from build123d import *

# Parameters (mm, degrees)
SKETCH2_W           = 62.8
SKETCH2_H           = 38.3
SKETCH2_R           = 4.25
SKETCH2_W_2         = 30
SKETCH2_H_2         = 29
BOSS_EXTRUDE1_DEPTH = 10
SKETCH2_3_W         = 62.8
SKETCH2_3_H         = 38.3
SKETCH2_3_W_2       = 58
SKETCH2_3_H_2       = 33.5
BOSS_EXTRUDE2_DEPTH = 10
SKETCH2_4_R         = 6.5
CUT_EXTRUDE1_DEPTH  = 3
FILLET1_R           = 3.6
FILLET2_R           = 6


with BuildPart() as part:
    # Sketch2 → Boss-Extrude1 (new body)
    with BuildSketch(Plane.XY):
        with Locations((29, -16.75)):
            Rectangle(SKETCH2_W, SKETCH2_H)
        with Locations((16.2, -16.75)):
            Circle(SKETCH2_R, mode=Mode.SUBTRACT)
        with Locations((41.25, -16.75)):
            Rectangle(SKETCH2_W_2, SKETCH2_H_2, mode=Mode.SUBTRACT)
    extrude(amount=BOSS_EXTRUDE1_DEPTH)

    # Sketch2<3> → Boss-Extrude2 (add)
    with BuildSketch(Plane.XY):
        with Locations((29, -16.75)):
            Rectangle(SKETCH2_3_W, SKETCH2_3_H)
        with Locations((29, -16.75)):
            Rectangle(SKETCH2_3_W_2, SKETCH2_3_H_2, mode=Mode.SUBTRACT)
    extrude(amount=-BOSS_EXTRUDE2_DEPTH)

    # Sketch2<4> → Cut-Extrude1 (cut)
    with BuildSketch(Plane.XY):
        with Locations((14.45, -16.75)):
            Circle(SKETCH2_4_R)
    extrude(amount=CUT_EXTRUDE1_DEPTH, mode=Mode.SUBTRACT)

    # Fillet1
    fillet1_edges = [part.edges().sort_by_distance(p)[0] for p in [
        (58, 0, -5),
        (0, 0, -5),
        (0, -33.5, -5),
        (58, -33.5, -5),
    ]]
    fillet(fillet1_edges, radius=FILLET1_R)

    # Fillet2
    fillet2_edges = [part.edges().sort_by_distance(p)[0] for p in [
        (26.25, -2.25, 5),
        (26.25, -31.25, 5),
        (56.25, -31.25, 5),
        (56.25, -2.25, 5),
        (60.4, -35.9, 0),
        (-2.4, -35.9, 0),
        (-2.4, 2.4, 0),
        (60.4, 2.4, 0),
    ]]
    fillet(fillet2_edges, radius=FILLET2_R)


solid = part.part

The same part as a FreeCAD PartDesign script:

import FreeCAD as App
import Part
import Sketcher
from FreeCAD import Vector
Q = App.Units.Quantity


def edges_at(feature, points):
    """Names of the edges that pass closest to the given points."""
    edges = feature.Shape.Edges
    near = lambda p: min(range(len(edges)), key=lambda i: edges[i].distToShape(Part.Vertex(*p))[0])
    return sorted({f"Edge{near(p) + 1}" for p in points})


def add_polygon(sketch, points):
    """Adds a closed chain of lines whose ends are joined by coincident constraints."""
    first, n = sketch.GeometryCount, len(points)
    for a, b in zip(points, points[1:] + points[:1]):
        sketch.addGeometry(Part.LineSegment(App.Vector(*a, 0), App.Vector(*b, 0)), False)
    for i in range(n):
        sketch.addConstraint(Sketcher.Constraint("Coincident", first + i, 2, first + (i + 1) % n, 1))

doc = App.newDocument("Part")
params = doc.addObject("Spreadsheet::Sheet", "Params")
for row, (alias, value) in enumerate([
    ("sketch1_diameter", "8.5 mm"),
    ("sketch1_width", "30 mm"),
    ("sketch1_height", "29 mm"),
    ("sketch1_width2", "62.8 mm"),
    ("sketch1_height2", "38.3 mm"),
    ("pad1_length", "10 mm"),
    ("sketch2_width", "58 mm"),
    ("sketch2_width2", "62.8 mm"),
    ("sketch2_height", "38.3 mm"),
    ("sketch2_height2", "33.5 mm"),
    ("pad2_length", "10 mm"),
    ("sketch3_diameter", "13 mm"),
    ("pocket1_length", "3 mm"),
    ("fillet_radius", "3.6 mm"),
    ("fillet2_radius", "6 mm"),
], start=1):
    params.set(f"A{row}", alias)
    params.set(f"B{row}", "=" + value)
    params.setAlias(f"B{row}", alias)

body = doc.addObject("PartDesign::Body", "Body")

# Sketch on XY plane
sketch1 = body.newObject("Sketcher::SketchObject", "Sketch")
sketch1.AttachmentSupport = (doc.getObject("XY_Plane"), [""])
sketch1.MapMode = "FlatFace"
add_polygon(sketch1, [(-2.4, 2.4), (-2.4, -35.9), (60.4, -35.9), (60.4, 2.4)])  # lines 0-3
sketch1.addGeometry(Part.Circle(Vector(16.2, -16.8, 0), Vector(0, 0, 1), 4.2), False)  # 4
add_polygon(sketch1, [(56.2, -31.2), (26.2, -31.2), (26.2, -2.2), (56.2, -2.2)])  # lines 5-8
sketch1.addConstraint([
    Sketcher.Constraint("Vertical", 0),
    Sketcher.Constraint("Horizontal", 1),
    Sketcher.Constraint("Vertical", 2),
    Sketcher.Constraint("Horizontal", 3),
    Sketcher.Constraint("Horizontal", 5),
    Sketcher.Constraint("Vertical", 6),
    Sketcher.Constraint("Horizontal", 7),
    Sketcher.Constraint("Vertical", 8),
    Sketcher.Constraint("Diameter", 4, Q("8.5 mm")),
    Sketcher.Constraint("DistanceX", 5, 2, 5, 1, Q("30 mm")),
    Sketcher.Constraint("DistanceY", 6, 1, 6, 2, Q("29 mm")),
    Sketcher.Constraint("DistanceX", 1, 1, 1, 2, Q("62.8 mm")),
    Sketcher.Constraint("DistanceY", 0, 2, 0, 1, Q("38.3 mm")),
    Sketcher.Constraint("DistanceX", -1, 1, 4, 3, Q("16.2 mm")),
    Sketcher.Constraint("DistanceX", 0, 2, -1, 1, Q("2.4 mm")),
    Sketcher.Constraint("DistanceY", 0, 2, -1, 1, Q("35.9 mm")),
    Sketcher.Constraint("DistanceY", 5, 2, 4, 3, Q("14.5 mm")),
    Sketcher.Constraint("DistanceY", 4, 3, -1, 1, Q("16.75 mm")),
    Sketcher.Constraint("DistanceX", -1, 1, 5, 2, Q("26.25 mm")),
])
sketch1.setExpression("Constraints[16]", "Params.sketch1_diameter")
sketch1.setExpression("Constraints[17]", "Params.sketch1_width")
sketch1.setExpression("Constraints[18]", "Params.sketch1_height")
sketch1.setExpression("Constraints[19]", "Params.sketch1_width2")
sketch1.setExpression("Constraints[20]", "Params.sketch1_height2")
pad1 = body.newObject("PartDesign::Pad", "Pad")
pad1.Profile = sketch1
pad1.setExpression("Length", "Params.pad1_length")

# Sketch on XY plane
sketch2 = body.newObject("Sketcher::SketchObject", "Sketch001")
sketch2.AttachmentSupport = (doc.getObject("XY_Plane"), [""])
sketch2.MapMode = "FlatFace"
add_polygon(sketch2, [(-2, 2), (-2, -36), (60, -36), (60, 2)])  # lines 0-3
add_polygon(sketch2, [(58, -34), (0, -34), (0, 0), (58, 0)])  # lines 4-7
sketch2.addConstraint([
    Sketcher.Constraint("Vertical", 0),
    Sketcher.Constraint("Horizontal", 1),
    Sketcher.Constraint("Vertical", 2),
    Sketcher.Constraint("Horizontal", 3),
    Sketcher.Constraint("Horizontal", 4),
    Sketcher.Constraint("Vertical", 5),
    Sketcher.Constraint("Horizontal", 6),
    Sketcher.Constraint("Vertical", 7),
    Sketcher.Constraint("Coincident", 5, 2, -1, 1),
    Sketcher.Constraint("DistanceX", 4, 2, 4, 1, Q("58 mm")),
    Sketcher.Constraint("DistanceX", 1, 1, 1, 2, Q("62.8 mm")),
    Sketcher.Constraint("DistanceY", 0, 2, 0, 1, Q("38.3 mm")),
    Sketcher.Constraint("DistanceY", 5, 1, 5, 2, Q("33.5 mm")),
    Sketcher.Constraint("DistanceX", 0, 2, -1, 1, Q("2.4 mm")),
    Sketcher.Constraint("DistanceY", 0, 2, -1, 1, Q("35.9 mm")),
])
sketch2.setExpression("Constraints[17]", "Params.sketch2_width")
sketch2.setExpression("Constraints[18]", "Params.sketch2_width2")
sketch2.setExpression("Constraints[19]", "Params.sketch2_height")
sketch2.setExpression("Constraints[20]", "Params.sketch2_height2")
pad2 = body.newObject("PartDesign::Pad", "Pad001")
pad2.Profile = sketch2
pad2.setExpression("Length", "Params.pad2_length")
pad2.Reversed = True

# Sketch on XY plane
sketch3 = body.newObject("Sketcher::SketchObject", "Sketch002")
sketch3.AttachmentSupport = (doc.getObject("XY_Plane"), [""])
sketch3.MapMode = "FlatFace"
sketch3.addGeometry(Part.Circle(Vector(14, -17, 0), Vector(0, 0, 1), 6), False)
sketch3.addConstraint([
    Sketcher.Constraint("Diameter", 0, Q("13 mm")),
    Sketcher.Constraint("DistanceX", -1, 1, 0, 3, Q("14.45 mm")),
    Sketcher.Constraint("DistanceY", 0, 3, -1, 1, Q("16.75 mm")),
])
sketch3.setExpression("Constraints[0]", "Params.sketch3_diameter")
pocket1 = body.newObject("PartDesign::Pocket", "Pocket")
pocket1.Profile = sketch3
pocket1.setExpression("Length", "Params.pocket1_length")
pocket1.Reversed = True
doc.recompute()

fillet = body.newObject("PartDesign::Fillet", "Fillet")
fillet.Base = (pocket1, edges_at(pocket1, [
    (58, 0, -5),
    (0, 0, -5),
    (0, -33.5, -5),
    (58, -33.5, -5),
]))
fillet.setExpression("Radius", "Params.fillet_radius")
doc.recompute()

fillet2 = body.newObject("PartDesign::Fillet", "Fillet001")
fillet2.Base = (fillet, edges_at(fillet, [
    (26.25, -2.25, 5),
    (26.25, -31.25, 5),
    (56.25, -31.25, 5),
    (56.25, -2.25, 5),
    (60.4, -35.9, 0),
    (-2.4, -35.9, 0),
    (-2.4, 2.4, 0),
    (60.4, 2.4, 0),
]))
fillet2.setExpression("Radius", "Params.fillet2_radius")

doc.recompute()
